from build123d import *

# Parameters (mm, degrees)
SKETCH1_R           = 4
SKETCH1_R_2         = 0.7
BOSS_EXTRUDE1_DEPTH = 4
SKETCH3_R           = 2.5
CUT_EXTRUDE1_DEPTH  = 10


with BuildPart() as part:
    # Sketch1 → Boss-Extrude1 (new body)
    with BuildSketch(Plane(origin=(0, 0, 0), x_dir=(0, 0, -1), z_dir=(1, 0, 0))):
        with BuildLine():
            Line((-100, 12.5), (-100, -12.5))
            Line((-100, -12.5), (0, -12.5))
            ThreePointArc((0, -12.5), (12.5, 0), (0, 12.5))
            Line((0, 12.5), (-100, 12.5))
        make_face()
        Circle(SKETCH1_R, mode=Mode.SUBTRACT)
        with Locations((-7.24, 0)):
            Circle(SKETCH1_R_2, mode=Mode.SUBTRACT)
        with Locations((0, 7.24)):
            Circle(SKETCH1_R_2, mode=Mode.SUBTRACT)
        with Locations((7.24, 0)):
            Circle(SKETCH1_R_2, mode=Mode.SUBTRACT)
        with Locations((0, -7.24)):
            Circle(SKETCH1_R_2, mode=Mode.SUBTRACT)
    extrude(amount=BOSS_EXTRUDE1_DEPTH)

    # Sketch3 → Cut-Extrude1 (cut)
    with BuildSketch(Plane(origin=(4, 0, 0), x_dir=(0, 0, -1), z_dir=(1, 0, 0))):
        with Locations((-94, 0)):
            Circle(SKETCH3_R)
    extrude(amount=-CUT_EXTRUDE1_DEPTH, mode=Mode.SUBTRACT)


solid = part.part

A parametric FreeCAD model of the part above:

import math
import FreeCAD as App
import Part
import Sketcher
from FreeCAD import Vector

doc = App.newDocument("Part")
body = doc.addObject("PartDesign::Body", "Body")

# Sketch on YZ plane
sketch1 = doc.addObject("Sketcher::SketchObject", "Sketch")
body.addObject(sketch1)
sketch1.AttachmentSupport = (doc.YZ_Plane, [""])
sketch1.MapMode = "FlatFace"
sketch1.addGeometry([
    Part.LineSegment(Vector(12.5, 100, 0), Vector(-12.5, 100, 0)),  # 0
    Part.LineSegment(Vector(-12.5, 100, 0), Vector(-12.5, 0, 0)),  # 1
    Part.ArcOfCircle(Part.Circle(Vector(0, 0, 0), Vector(0, 0, 1), 12.5), math.radians(180), math.radians(360)),  # 2
    Part.LineSegment(Vector(12.5, 0, 0), Vector(12.5, 100, 0)),  # 3
    Part.Circle(Vector(-7.2, 0, 0), Vector(0, 0, 1), 0.7),  # 4
    Part.Circle(Vector(0, 7.2, 0), Vector(0, 0, 1), 0.7),  # 5
    Part.Circle(Vector(0, 0, 0), Vector(0, 0, 1), 4),  # 6
    Part.Circle(Vector(0, -7.2, 0), Vector(0, 0, 1), 0.7),  # 7
    Part.Circle(Vector(7.2, 0, 0), Vector(0, 0, 1), 0.7),  # 8
], False)
sketch1.addConstraint([
    Sketcher.Constraint("Coincident", 0, 2, 1, 1),
    Sketcher.Constraint("Tangent", 1, 2, 2, 1),
    Sketcher.Constraint("Tangent", 2, 2, 3, 1),
    Sketcher.Constraint("Coincident", 3, 2, 0, 1),
    Sketcher.Constraint("Horizontal", 0),
    Sketcher.Constraint("Vertical", 1),
    Sketcher.Constraint("Vertical", 3),
    Sketcher.Constraint("Coincident", 2, 3, -1, 1),
    Sketcher.Constraint("Coincident", 6, 3, -1, 1),
    Sketcher.Constraint("Equal", 4, 5),
    Sketcher.Constraint("Equal", 5, 7),
    Sketcher.Constraint("Equal", 7, 8),
    Sketcher.Constraint("Symmetric", 5, 3, 7, 3, -1, 1),
    Sketcher.Constraint("Symmetric", 4, 3, 8, 3, -1, 1),
    Sketcher.Constraint("PointOnObject", 4, 3, -1),
    Sketcher.Constraint("PointOnObject", 5, 3, -2),
    Sketcher.Constraint("Diameter", 6, 8.0),
    Sketcher.Constraint("Diameter", 4, 1.4),
    Sketcher.Constraint("Radius", 2, 12.5),
    Sketcher.Constraint("DistanceY", 1, 2, 1, 1, 100.0),
    Sketcher.Constraint("DistanceX", 4, 3, -1, 1, 7.24),
    Sketcher.Constraint("DistanceY", -1, 1, 5, 3, 7.24),
])
pad1 = doc.addObject("PartDesign::Pad", "Pad")
body.addObject(pad1)
pad1.Profile = sketch1
pad1.Length = 4

# Sketch on YZ plane
sketch2 = doc.addObject("Sketcher::SketchObject", "Sketch001")
body.addObject(sketch2)
sketch2.AttachmentSupport = (doc.YZ_Plane, [""])
sketch2.MapMode = "FlatFace"
sketch2.AttachmentOffset = App.Placement(Vector(0, 0, 4), App.Rotation())
sketch2.addGeometry(Part.Circle(Vector(0, 94, 0), Vector(0, 0, 1), 2.5), False)
sketch2.addConstraint([
    Sketcher.Constraint("PointOnObject", 0, 3, -2),
    Sketcher.Constraint("Diameter", 0, 5.0),
    Sketcher.Constraint("DistanceY", -1, 1, 0, 3, 94.0),
])
pocket1 = doc.addObject("PartDesign::Pocket", "Pocket")
body.addObject(pocket1)
pocket1.Profile = sketch2
pocket1.Length = 10

doc.recompute()
